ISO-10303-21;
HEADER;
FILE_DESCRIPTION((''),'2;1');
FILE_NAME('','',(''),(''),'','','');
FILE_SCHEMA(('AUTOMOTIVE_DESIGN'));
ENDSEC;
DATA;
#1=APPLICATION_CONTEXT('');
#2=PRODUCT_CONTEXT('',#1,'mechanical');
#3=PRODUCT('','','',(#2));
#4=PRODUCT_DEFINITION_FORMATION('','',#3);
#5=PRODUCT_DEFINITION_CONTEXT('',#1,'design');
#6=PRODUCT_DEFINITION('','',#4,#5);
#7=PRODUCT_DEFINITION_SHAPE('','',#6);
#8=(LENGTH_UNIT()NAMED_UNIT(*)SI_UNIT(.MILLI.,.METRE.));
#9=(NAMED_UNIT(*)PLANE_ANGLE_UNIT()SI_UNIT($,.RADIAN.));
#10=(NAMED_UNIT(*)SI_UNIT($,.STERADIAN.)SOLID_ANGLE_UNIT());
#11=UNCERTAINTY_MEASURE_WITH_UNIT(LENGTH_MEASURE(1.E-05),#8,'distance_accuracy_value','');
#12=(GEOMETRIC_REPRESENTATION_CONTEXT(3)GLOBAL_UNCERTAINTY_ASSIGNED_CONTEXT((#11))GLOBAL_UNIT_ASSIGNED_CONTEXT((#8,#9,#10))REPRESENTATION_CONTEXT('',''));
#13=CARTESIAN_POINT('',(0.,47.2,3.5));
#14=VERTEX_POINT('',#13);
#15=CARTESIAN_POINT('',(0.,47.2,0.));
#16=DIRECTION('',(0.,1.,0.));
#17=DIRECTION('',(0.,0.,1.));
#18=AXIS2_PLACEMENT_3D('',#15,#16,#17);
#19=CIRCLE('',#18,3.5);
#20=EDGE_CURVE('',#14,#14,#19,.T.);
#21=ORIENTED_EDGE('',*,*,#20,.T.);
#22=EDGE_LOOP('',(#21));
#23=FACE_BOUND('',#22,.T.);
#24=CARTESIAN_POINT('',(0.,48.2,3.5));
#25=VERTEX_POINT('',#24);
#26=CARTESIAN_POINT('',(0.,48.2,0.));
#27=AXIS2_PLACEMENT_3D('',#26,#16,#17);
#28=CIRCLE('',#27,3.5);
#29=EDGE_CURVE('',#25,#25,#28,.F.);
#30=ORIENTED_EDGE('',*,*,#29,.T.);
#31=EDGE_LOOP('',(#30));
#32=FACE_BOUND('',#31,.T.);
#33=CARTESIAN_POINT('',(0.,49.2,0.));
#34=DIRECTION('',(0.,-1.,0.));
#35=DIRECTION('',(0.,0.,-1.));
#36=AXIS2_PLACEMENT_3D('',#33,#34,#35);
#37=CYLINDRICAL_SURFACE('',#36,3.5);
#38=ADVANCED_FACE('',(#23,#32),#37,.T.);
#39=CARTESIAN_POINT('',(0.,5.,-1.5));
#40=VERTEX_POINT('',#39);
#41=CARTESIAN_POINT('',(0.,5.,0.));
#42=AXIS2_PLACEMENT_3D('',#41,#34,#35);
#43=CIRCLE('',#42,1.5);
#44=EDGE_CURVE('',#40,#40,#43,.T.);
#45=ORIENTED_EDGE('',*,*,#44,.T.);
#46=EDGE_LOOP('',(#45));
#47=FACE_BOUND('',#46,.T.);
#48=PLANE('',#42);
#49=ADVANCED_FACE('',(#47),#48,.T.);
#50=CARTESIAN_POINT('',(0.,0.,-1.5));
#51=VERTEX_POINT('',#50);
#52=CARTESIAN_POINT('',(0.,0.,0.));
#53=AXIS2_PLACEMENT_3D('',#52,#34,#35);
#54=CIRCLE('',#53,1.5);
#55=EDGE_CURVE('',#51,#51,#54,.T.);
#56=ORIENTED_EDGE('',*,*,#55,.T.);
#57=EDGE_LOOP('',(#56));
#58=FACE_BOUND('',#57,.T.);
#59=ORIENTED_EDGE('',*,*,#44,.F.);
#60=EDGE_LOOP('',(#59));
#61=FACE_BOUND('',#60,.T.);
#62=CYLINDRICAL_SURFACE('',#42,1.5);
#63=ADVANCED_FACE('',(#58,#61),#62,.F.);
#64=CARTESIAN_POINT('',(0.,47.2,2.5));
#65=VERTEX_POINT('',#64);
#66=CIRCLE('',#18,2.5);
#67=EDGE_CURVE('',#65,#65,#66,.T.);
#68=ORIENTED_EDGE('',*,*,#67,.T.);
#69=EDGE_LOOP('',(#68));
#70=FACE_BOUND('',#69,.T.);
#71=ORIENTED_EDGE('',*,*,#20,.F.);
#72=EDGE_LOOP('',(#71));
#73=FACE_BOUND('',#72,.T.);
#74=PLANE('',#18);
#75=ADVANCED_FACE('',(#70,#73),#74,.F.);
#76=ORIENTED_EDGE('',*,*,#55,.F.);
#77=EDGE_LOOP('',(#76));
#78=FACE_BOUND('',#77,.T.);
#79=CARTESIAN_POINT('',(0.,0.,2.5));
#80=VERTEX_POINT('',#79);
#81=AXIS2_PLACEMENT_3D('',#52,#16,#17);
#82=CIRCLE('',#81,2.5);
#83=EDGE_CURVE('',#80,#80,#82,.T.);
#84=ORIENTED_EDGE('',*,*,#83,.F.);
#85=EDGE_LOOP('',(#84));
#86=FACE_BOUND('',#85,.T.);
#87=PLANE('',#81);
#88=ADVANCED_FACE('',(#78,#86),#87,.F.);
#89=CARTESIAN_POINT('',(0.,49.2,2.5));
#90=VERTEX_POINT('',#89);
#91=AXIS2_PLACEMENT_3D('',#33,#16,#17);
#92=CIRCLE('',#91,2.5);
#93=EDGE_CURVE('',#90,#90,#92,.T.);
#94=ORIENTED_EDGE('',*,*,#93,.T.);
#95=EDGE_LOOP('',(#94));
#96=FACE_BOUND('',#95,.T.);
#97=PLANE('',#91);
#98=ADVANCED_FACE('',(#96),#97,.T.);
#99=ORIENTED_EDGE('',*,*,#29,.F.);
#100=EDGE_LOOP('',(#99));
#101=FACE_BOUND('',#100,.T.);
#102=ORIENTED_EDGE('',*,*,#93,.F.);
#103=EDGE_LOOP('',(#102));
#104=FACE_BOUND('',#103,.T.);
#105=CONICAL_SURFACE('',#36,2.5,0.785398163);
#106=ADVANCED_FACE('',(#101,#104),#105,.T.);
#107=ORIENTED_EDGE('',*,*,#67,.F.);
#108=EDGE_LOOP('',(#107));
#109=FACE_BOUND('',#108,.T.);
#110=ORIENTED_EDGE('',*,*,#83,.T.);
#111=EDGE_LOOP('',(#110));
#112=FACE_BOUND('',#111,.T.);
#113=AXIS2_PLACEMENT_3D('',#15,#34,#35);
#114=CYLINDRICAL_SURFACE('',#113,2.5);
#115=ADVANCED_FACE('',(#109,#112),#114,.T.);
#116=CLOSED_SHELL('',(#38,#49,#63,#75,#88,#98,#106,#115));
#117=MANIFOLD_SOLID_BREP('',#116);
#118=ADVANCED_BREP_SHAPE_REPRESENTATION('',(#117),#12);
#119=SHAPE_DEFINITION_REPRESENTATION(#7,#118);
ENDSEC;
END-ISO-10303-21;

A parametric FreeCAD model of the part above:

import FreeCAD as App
import Part
import Sketcher


def edges_at(feature, points):
    """Names of the edges that pass closest to the given points."""
    edges = feature.Shape.Edges
    near = lambda p: min(range(len(edges)), key=lambda i: edges[i].distToShape(Part.Vertex(*p))[0])
    return sorted({f"Edge{near(p) + 1}" for p in points})

doc = App.newDocument("Part")
body = doc.addObject("PartDesign::Body", "Body")

# Sketch on XZ plane
sketch1 = body.newObject("Sketcher::SketchObject", "Sketch")
sketch1.AttachmentSupport = (doc.getObject("XZ_Plane"), [""])
sketch1.MapMode = "FlatFace"
sketch1.addGeometry(Part.Circle(App.Vector(0, 0, 0), App.Vector(0, 0, 1), 2.5), False)
sketch1.addConstraint([
    Sketcher.Constraint("Coincident", 0, 3, -1, 1),
    Sketcher.Constraint("Diameter", 0, 5.0),
])
pad1 = body.newObject("PartDesign::Pad", "Pad")
pad1.Profile = sketch1
pad1.Length = 47.2
pad1.Reversed = True

# Sketch on XZ plane
sketch2 = body.newObject("Sketcher::SketchObject", "Sketch001")
sketch2.AttachmentSupport = (doc.getObject("XZ_Plane"), [""])
sketch2.MapMode = "FlatFace"
sketch2.AttachmentOffset = App.Placement(App.Vector(0, 0, -47.2), App.Rotation())
sketch2.addGeometry(Part.Circle(App.Vector(0, 0, 0), App.Vector(0, 0, 1), 3.5), False)
sketch2.addConstraint([
    Sketcher.Constraint("Coincident", 0, 3, -1, 1),
    Sketcher.Constraint("Diameter", 0, 7.0),
])
pad2 = body.newObject("PartDesign::Pad", "Pad001")
pad2.Profile = sketch2
pad2.Length = 2
pad2.Reversed = True
doc.recompute()

chamfer = body.newObject("PartDesign::Chamfer", "Chamfer")
chamfer.Base = (pad2, edges_at(pad2, [(-3.5, 49.2, 0)]))
chamfer.Size = 1

# Sketch on XZ plane
sketch3 = body.newObject("Sketcher::SketchObject", "Sketch002")
sketch3.AttachmentSupport = (doc.getObject("XZ_Plane"), [""])
sketch3.MapMode = "FlatFace"
sketch3.addGeometry(Part.Circle(App.Vector(0, 0, 0), App.Vector(0, 0, 1), 1.5), False)
sketch3.addConstraint([
    Sketcher.Constraint("Coincident", 0, 3, -1, 1),
    Sketcher.Constraint("Diameter", 0, 3.0),
])
pocket1 = body.newObject("PartDesign::Pocket", "Pocket")
pocket1.Profile = sketch3
pocket1.Length = 5

doc.recompute()
